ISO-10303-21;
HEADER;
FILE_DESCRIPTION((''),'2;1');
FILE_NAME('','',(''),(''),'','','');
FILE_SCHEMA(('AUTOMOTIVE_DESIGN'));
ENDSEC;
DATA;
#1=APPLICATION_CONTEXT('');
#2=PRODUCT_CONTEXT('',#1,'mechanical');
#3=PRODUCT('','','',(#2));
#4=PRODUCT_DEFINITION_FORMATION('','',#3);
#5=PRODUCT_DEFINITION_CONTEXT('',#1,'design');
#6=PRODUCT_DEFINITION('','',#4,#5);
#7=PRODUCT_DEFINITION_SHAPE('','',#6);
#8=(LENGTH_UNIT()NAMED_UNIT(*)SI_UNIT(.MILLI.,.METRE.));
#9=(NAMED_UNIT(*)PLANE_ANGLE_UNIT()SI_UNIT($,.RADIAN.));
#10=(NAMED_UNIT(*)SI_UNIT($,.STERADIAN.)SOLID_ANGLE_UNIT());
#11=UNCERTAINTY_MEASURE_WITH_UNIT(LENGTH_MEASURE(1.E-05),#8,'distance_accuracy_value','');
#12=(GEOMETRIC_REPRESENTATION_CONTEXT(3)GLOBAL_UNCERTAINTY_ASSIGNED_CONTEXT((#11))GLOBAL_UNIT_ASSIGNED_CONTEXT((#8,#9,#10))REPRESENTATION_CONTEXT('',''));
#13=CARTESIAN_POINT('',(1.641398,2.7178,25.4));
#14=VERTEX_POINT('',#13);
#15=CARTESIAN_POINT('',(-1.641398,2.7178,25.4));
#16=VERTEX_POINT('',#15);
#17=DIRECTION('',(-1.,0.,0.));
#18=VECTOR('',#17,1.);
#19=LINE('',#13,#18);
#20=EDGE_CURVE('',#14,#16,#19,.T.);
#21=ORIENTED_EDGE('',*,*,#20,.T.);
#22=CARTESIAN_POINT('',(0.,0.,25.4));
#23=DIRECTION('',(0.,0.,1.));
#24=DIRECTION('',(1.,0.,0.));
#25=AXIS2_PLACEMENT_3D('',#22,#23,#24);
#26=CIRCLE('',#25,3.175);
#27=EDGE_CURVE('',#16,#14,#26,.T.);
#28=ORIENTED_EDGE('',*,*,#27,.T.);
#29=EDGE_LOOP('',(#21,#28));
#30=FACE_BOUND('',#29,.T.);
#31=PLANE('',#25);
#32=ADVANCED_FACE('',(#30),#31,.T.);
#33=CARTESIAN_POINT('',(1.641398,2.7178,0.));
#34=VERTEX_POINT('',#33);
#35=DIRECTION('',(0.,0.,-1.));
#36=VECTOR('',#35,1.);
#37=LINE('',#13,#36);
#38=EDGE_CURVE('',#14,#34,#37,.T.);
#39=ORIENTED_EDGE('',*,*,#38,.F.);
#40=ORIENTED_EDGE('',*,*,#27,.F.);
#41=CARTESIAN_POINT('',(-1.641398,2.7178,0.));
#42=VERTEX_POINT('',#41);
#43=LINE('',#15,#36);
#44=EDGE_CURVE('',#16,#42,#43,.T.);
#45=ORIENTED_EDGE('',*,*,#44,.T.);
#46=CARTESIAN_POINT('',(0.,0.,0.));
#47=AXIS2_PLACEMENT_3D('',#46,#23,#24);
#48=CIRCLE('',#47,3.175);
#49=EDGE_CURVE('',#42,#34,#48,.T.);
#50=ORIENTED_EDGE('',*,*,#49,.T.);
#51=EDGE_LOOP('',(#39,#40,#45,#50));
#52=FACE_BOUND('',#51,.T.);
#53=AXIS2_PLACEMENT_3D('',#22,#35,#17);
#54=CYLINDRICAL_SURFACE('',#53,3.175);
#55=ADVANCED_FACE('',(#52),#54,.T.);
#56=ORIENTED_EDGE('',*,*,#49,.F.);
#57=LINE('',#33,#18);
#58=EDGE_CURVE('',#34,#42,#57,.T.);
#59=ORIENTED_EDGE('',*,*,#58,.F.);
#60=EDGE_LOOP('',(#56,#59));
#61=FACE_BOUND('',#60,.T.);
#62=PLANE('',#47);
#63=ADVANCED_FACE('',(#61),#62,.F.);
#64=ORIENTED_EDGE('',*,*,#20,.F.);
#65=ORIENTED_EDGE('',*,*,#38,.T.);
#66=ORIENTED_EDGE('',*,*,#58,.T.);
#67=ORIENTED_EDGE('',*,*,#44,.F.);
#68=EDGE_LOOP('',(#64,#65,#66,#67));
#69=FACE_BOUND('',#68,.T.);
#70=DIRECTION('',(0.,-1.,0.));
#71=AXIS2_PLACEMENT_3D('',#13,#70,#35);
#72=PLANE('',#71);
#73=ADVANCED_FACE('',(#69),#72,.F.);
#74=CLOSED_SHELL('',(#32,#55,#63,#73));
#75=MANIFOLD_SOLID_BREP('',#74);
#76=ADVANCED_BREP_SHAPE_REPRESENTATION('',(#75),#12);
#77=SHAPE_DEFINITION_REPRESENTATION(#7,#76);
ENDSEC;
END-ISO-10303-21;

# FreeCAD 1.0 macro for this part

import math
import FreeCAD as App
import Part
import Sketcher
Q = App.Units.Quantity

doc = App.newDocument("Part")
body = doc.addObject("PartDesign::Body", "Body")

sketch1 = body.newObject("Sketcher::SketchObject", "Sketch")
sketch1.AttachmentSupport = (doc.getObject("XY_Plane"), [""])
sketch1.MapMode = "FlatFace"
sketch1.addGeometry(Part.Circle(App.Vector(0, 0, 0), App.Vector(0, 0, 1), 3.175), False)
sketch1.addConstraint([
    Sketcher.Constraint("Coincident", 0, 3, -1, 1),
    Sketcher.Constraint("Diameter", 0, Q("0.25 in")),
])
pad1 = body.newObject("PartDesign::Pad", "Pad")
pad1.Profile = sketch1
pad1.Length = Q("1 in")

sketch2 = body.newObject("Sketcher::SketchObject", "Sketch001")
sketch2.AttachmentSupport = (doc.getObject("XY_Plane"), [""])
sketch2.MapMode = "FlatFace"
sketch2.addGeometry([
    Part.LineSegment(App.Vector(1.641398, 2.7178, 0), App.Vector(-1.641398, 2.7178, 0)),
    Part.ArcOfCircle(Part.Circle(App.Vector(0, 0, 0), App.Vector(0, 0, 1), 3.175), math.radians(58.870387), math.radians(121.129613)),
], False)
sketch2.addConstraint([
    Sketcher.Constraint("Coincident", 0, 1, 1, 1),
    Sketcher.Constraint("Coincident", 1, 2, 0, 2),
    Sketcher.Constraint("Horizontal", 0),
    Sketcher.Constraint("Coincident", 1, 3, -1, 1),
    Sketcher.Constraint("Radius", 1, Q("0.125 in")),
    Sketcher.Constraint("DistanceY", -1, 1, 0, 1, Q("0.107 in")),
])
pocket1 = body.newObject("PartDesign::Pocket", "Pocket")
pocket1.Profile = sketch2
pocket1.Type = "ThroughAll"
pocket1.Reversed = True

doc.recompute()
